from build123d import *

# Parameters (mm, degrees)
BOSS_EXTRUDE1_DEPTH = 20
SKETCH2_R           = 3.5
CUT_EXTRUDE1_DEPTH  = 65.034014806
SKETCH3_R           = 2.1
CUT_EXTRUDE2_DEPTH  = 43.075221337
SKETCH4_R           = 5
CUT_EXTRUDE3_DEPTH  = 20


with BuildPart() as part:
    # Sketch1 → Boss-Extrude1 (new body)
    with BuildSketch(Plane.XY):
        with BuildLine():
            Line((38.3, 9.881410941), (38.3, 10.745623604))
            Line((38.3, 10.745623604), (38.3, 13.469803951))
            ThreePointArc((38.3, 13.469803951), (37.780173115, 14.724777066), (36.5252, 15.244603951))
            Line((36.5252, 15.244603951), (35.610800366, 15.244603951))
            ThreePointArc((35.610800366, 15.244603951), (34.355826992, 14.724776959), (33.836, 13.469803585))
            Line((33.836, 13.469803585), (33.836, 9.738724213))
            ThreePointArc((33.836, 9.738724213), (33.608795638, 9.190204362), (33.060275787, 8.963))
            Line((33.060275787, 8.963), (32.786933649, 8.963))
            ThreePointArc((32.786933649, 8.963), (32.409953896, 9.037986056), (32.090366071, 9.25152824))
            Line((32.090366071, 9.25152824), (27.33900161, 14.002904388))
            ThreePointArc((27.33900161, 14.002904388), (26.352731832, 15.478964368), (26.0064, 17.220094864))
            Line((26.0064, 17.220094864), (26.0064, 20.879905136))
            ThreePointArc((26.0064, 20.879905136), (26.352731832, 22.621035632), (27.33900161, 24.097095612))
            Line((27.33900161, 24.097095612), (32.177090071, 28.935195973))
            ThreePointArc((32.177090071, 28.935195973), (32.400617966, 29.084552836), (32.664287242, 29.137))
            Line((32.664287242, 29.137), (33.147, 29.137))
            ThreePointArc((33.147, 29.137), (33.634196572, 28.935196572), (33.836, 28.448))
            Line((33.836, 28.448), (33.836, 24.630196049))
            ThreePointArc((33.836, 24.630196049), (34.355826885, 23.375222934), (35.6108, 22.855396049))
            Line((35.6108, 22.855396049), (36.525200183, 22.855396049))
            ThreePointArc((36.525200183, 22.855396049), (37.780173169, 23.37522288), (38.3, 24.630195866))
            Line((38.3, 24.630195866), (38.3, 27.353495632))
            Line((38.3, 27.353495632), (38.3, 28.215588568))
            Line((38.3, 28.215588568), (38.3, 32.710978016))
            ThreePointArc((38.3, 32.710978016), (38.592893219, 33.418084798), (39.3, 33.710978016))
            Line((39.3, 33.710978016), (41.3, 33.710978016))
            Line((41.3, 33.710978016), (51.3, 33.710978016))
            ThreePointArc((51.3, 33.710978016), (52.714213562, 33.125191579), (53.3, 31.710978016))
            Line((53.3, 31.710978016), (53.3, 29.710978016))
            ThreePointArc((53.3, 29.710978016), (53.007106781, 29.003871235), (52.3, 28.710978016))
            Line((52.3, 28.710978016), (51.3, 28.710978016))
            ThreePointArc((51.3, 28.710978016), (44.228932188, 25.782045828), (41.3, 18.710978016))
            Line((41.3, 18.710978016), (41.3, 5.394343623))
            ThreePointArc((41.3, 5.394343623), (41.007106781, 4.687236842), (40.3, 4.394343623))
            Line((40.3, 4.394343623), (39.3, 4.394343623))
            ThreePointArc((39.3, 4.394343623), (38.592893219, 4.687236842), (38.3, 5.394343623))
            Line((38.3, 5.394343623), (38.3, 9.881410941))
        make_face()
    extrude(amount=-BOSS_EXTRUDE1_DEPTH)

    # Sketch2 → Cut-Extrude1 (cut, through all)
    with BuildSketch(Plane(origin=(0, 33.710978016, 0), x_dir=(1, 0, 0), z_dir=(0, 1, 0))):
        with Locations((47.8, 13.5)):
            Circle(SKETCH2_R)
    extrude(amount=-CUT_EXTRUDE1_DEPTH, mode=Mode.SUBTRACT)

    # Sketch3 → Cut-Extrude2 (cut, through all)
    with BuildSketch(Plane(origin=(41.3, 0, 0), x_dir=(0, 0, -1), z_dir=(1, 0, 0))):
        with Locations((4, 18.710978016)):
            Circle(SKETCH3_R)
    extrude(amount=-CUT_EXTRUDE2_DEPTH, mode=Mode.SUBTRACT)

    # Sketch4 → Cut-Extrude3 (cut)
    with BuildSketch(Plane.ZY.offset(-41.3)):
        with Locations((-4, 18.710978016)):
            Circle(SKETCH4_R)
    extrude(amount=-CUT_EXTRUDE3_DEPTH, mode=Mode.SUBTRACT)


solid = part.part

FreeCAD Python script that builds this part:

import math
import FreeCAD as App
import Part
import Sketcher

doc = App.newDocument("Part")
body = doc.addObject("PartDesign::Body", "Body")

sketch1 = body.newObject("Sketcher::SketchObject", "Sketch")
sketch1.AttachmentSupport = (doc.getObject("XY_Plane"), [""])
sketch1.MapMode = "FlatFace"
sketch1.addGeometry(Part.ArcOfCircle(Part.Circle(App.Vector(36.53, 13.47, 0), App.Vector(0, 0, 1), 1.77), math.radians(0), math.radians(90)), False)
sketch1.addGeometry(Part.LineSegment(App.Vector(38.3, 13.47, 0), App.Vector(38.3, 5.39, 0)), False)
sketch1.addGeometry(Part.ArcOfCircle(Part.Circle(App.Vector(39.3, 5.39, 0), App.Vector(0, 0, 1), 1), math.radians(-180), math.radians(-90)), False)
sketch1.addGeometry(Part.LineSegment(App.Vector(39.3, 4.39, 0), App.Vector(40.3, 4.39, 0)), False)
sketch1.addGeometry(Part.ArcOfCircle(Part.Circle(App.Vector(40.3, 5.39, 0), App.Vector(0, 0, 1), 1), math.radians(-90), math.radians(0)), False)
sketch1.addGeometry(Part.LineSegment(App.Vector(41.3, 5.39, 0), App.Vector(41.3, 18.71, 0)), False)
sketch1.addGeometry(Part.ArcOfCircle(Part.Circle(App.Vector(51.3, 18.71, 0), App.Vector(0, 0, 1), 10), math.radians(90), math.radians(180)), False)
sketch1.addGeometry(Part.LineSegment(App.Vector(51.3, 28.71, 0), App.Vector(52.3, 28.71, 0)), False)
sketch1.addGeometry(Part.ArcOfCircle(Part.Circle(App.Vector(52.3, 29.71, 0), App.Vector(0, 0, 1), 1), math.radians(-90), math.radians(0)), False)
sketch1.addGeometry(Part.LineSegment(App.Vector(53.3, 29.71, 0), App.Vector(53.3, 31.71, 0)), False)
sketch1.addGeometry(Part.ArcOfCircle(Part.Circle(App.Vector(51.3, 31.71, 0), App.Vector(0, 0, 1), 2), math.radians(0), math.radians(90)), False)
sketch1.addGeometry(Part.LineSegment(App.Vector(51.3, 33.71, 0), App.Vector(39.3, 33.71, 0)), False)
sketch1.addGeometry(Part.ArcOfCircle(Part.Circle(App.Vector(39.3, 32.71, 0), App.Vector(0, 0, 1), 1), math.radians(90), math.radians(180)), False)
sketch1.addGeometry(Part.LineSegment(App.Vector(38.3, 32.71, 0), App.Vector(38.3, 24.63, 0)), False)
sketch1.addGeometry(Part.ArcOfCircle(Part.Circle(App.Vector(36.53, 24.63, 0), App.Vector(0, 0, 1), 1.77), math.radians(-90), math.radians(0)), False)
sketch1.addGeometry(Part.LineSegment(App.Vector(36.53, 22.86, 0), App.Vector(35.61, 22.86, 0)), False)
sketch1.addGeometry(Part.ArcOfCircle(Part.Circle(App.Vector(35.61, 24.63, 0), App.Vector(0, 0, 1), 1.77), math.radians(-180), math.radians(-90)), False)
sketch1.addGeometry(Part.LineSegment(App.Vector(33.84, 24.63, 0), App.Vector(33.84, 28.45, 0)), False)
sketch1.addGeometry(Part.ArcOfCircle(Part.Circle(App.Vector(33.15, 28.45, 0), App.Vector(0, 0, 1), 0.69), math.radians(0), math.radians(90)), False)
sketch1.addGeometry(Part.LineSegment(App.Vector(33.15, 29.14, 0), App.Vector(32.66, 29.14, 0)), False)
sketch1.addGeometry(Part.ArcOfCircle(Part.Circle(App.Vector(32.66, 28.45, 0), App.Vector(0, 0, 1), 0.69), math.radians(90), math.radians(135)), False)
sketch1.addGeometry(Part.LineSegment(App.Vector(32.18, 28.94, 0), App.Vector(27.34, 24.1, 0)), False)
sketch1.addGeometry(Part.ArcOfCircle(Part.Circle(App.Vector(30.56, 20.88, 0), App.Vector(0, 0, 1), 4.55), math.radians(135), math.radians(180)), False)
sketch1.addGeometry(Part.LineSegment(App.Vector(26.01, 20.88, 0), App.Vector(26.01, 17.22, 0)), False)
sketch1.addGeometry(Part.ArcOfCircle(Part.Circle(App.Vector(30.56, 17.22, 0), App.Vector(0, 0, 1), 4.55), math.radians(180), math.radians(225)), False)
sketch1.addGeometry(Part.LineSegment(App.Vector(27.34, 14, 0), App.Vector(32.09, 9.25, 0)), False)
sketch1.addGeometry(Part.ArcOfCircle(Part.Circle(App.Vector(32.79, 9.95, 0), App.Vector(0, 0, 1), 0.99), math.radians(-135), math.radians(-90)), False)
sketch1.addGeometry(Part.LineSegment(App.Vector(32.79, 8.96, 0), App.Vector(33.06, 8.96, 0)), False)
sketch1.addGeometry(Part.ArcOfCircle(Part.Circle(App.Vector(33.06, 9.74, 0), App.Vector(0, 0, 1), 0.78), math.radians(-90), math.radians(0)), False)
sketch1.addGeometry(Part.LineSegment(App.Vector(33.84, 9.74, 0), App.Vector(33.84, 13.47, 0)), False)
sketch1.addGeometry(Part.ArcOfCircle(Part.Circle(App.Vector(35.61, 13.47, 0), App.Vector(0, 0, 1), 1.77), math.radians(90), math.radians(180)), False)
sketch1.addGeometry(Part.LineSegment(App.Vector(35.61, 15.24, 0), App.Vector(36.53, 15.24, 0)), False)
sketch1.addConstraint(Sketcher.Constraint("Tangent", 0, 1, 1, 1))
sketch1.addConstraint(Sketcher.Constraint("Tangent", 1, 2, 2, 1))
sketch1.addConstraint(Sketcher.Constraint("Tangent", 2, 2, 3, 1))
sketch1.addConstraint(Sketcher.Constraint("Tangent", 3, 2, 4, 1))
sketch1.addConstraint(Sketcher.Constraint("Tangent", 4, 2, 5, 1))
sketch1.addConstraint(Sketcher.Constraint("Tangent", 5, 2, 6, 2))
sketch1.addConstraint(Sketcher.Constraint("Tangent", 6, 1, 7, 1))
sketch1.addConstraint(Sketcher.Constraint("Tangent", 7, 2, 8, 1))
sketch1.addConstraint(Sketcher.Constraint("Tangent", 8, 2, 9, 1))
sketch1.addConstraint(Sketcher.Constraint("Tangent", 9, 2, 10, 1))
sketch1.addConstraint(Sketcher.Constraint("Tangent", 10, 2, 11, 1))
sketch1.addConstraint(Sketcher.Constraint("Tangent", 11, 2, 12, 1))
sketch1.addConstraint(Sketcher.Constraint("Tangent", 12, 2, 13, 1))
sketch1.addConstraint(Sketcher.Constraint("Tangent", 13, 2, 14, 2))
sketch1.addConstraint(Sketcher.Constraint("Tangent", 14, 1, 15, 1))
sketch1.addConstraint(Sketcher.Constraint("Tangent", 15, 2, 16, 2))
sketch1.addConstraint(Sketcher.Constraint("Tangent", 16, 1, 17, 1))
sketch1.addConstraint(Sketcher.Constraint("Tangent", 17, 2, 18, 1))
sketch1.addConstraint(Sketcher.Constraint("Tangent", 18, 2, 19, 1))
sketch1.addConstraint(Sketcher.Constraint("Tangent", 19, 2, 20, 1))
sketch1.addConstraint(Sketcher.Constraint("Tangent", 20, 2, 21, 1))
sketch1.addConstraint(Sketcher.Constraint("Tangent", 21, 2, 22, 1))
sketch1.addConstraint(Sketcher.Constraint("Tangent", 22, 2, 23, 1))
sketch1.addConstraint(Sketcher.Constraint("Tangent", 23, 2, 24, 1))
sketch1.addConstraint(Sketcher.Constraint("Tangent", 24, 2, 25, 1))
sketch1.addConstraint(Sketcher.Constraint("Tangent", 25, 2, 26, 1))
sketch1.addConstraint(Sketcher.Constraint("Tangent", 26, 2, 27, 1))
sketch1.addConstraint(Sketcher.Constraint("Tangent", 27, 2, 28, 1))
sketch1.addConstraint(Sketcher.Constraint("Tangent", 28, 2, 29, 1))
sketch1.addConstraint(Sketcher.Constraint("Tangent", 29, 2, 30, 2))
sketch1.addConstraint(Sketcher.Constraint("Tangent", 30, 1, 31, 1))
sketch1.addConstraint(Sketcher.Constraint("Tangent", 31, 2, 0, 2))
sketch1.addConstraint(Sketcher.Constraint("Vertical", 1))
sketch1.addConstraint(Sketcher.Constraint("Horizontal", 3))
sketch1.addConstraint(Sketcher.Constraint("Vertical", 5))
sketch1.addConstraint(Sketcher.Constraint("Horizontal", 7))
sketch1.addConstraint(Sketcher.Constraint("Vertical", 9))
sketch1.addConstraint(Sketcher.Constraint("Horizontal", 11))
sketch1.addConstraint(Sketcher.Constraint("Vertical", 13))
sketch1.addConstraint(Sketcher.Constraint("Horizontal", 15))
sketch1.addConstraint(Sketcher.Constraint("Vertical", 17))
sketch1.addConstraint(Sketcher.Constraint("Horizontal", 19))
sketch1.addConstraint(Sketcher.Constraint("Vertical", 23))
sketch1.addConstraint(Sketcher.Constraint("Horizontal", 27))
sketch1.addConstraint(Sketcher.Constraint("Vertical", 29))
sketch1.addConstraint(Sketcher.Constraint("Horizontal", 31))
sketch1.addConstraint(Sketcher.Constraint("Equal", 2, 4))
sketch1.addConstraint(Sketcher.Constraint("Equal", 4, 8))
sketch1.addConstraint(Sketcher.Constraint("Equal", 8, 12))
sketch1.addConstraint(Sketcher.Constraint("Equal", 0, 14))
sketch1.addConstraint(Sketcher.Constraint("Equal", 14, 16))
sketch1.addConstraint(Sketcher.Constraint("Equal", 18, 20))
sketch1.addConstraint(Sketcher.Constraint("Equal", 22, 24))
sketch1.addConstraint(Sketcher.Constraint("Equal", 16, 30))
sketch1.addConstraint(Sketcher.Constraint("Vertical", 6, 3, 10, 3))
sketch1.addConstraint(Sketcher.Constraint("Vertical", 2, 3, 12, 3))
sketch1.addConstraint(Sketcher.Constraint("Vertical", 16, 3, 30, 3))
sketch1.addConstraint(Sketcher.Constraint("Vertical", 21, 2, 24, 2))
sketch1.addConstraint(Sketcher.Constraint("Equal", 3, 7))
sketch1.addConstraint(Sketcher.Constraint("Radius", 2, 1.0))
sketch1.addConstraint(Sketcher.Constraint("Radius", 6, 10.0))
sketch1.addConstraint(Sketcher.Constraint("Radius", 10, 2.0))
sketch1.addConstraint(Sketcher.Constraint("DistanceY", 9, 1, 9, 2, 2.0))
sketch1.addConstraint(Sketcher.Constraint("Radius", 18, 0.689))
sketch1.addConstraint(Sketcher.Constraint("DistanceX", -1, 1, 2, 3, 39.3))
sketch1.addConstraint(Sketcher.Constraint("Radius", 0, 1.7748))
sketch1.addConstraint(Sketcher.Constraint("Radius", 22, 4.5498))
sketch1.addConstraint(Sketcher.Constraint("DistanceX", 15, 2, 15, 1, 0.9144))
sketch1.addConstraint(Sketcher.Constraint("DistanceY", -1, 1, 18, 3, 28.448))
sketch1.addConstraint(Sketcher.Constraint("DistanceX", -1, 1, 21, 2, 27.339002))
sketch1.addConstraint(Sketcher.Constraint("DistanceY", -1, 1, 26, 2, 8.963))
sketch1.addConstraint(Sketcher.Constraint("Radius", 26, 0.985094))
sketch1.addConstraint(Sketcher.Constraint("Radius", 28, 0.775724))
sketch1.addConstraint(Sketcher.Constraint("DistanceX", 22, 3, 14, 3, 5.969))
sketch1.addConstraint(Sketcher.Constraint("DistanceY", 26, 3, 24, 3, 7.272001))
sketch1.addConstraint(Sketcher.Constraint("DistanceY", 23, 2, 21, 2, 6.877001))
sketch1.addConstraint(Sketcher.Constraint("DistanceY", 1, 2, 1, 1, 8.07546))
sketch1.addConstraint(Sketcher.Constraint("DistanceY", 29, 1, 29, 2, 3.731079))
sketch1.addConstraint(Sketcher.Constraint("DistanceY", 24, 3, 16, 3, 7.410101))
sketch1.addConstraint(Sketcher.Constraint("DistanceY", 5, 1, 5, 2, 13.316634))
pad1 = body.newObject("PartDesign::Pad", "Pad")
pad1.Profile = sketch1
pad1.Length = 20
pad1.Reversed = True

sketch2 = body.newObject("Sketcher::SketchObject", "Sketch001")
sketch2.AttachmentSupport = (doc.getObject("XZ_Plane"), [""])
sketch2.MapMode = "FlatFace"
sketch2.AttachmentOffset = App.Placement(App.Vector(0, 0, -33.710978), App.Rotation())
sketch2.addGeometry(Part.Circle(App.Vector(47.8, -13.5, 0), App.Vector(0, 0, 1), 3.5), False)
sketch2.addConstraint(Sketcher.Constraint("Diameter", 0, 7.0))
sketch2.addConstraint(Sketcher.Constraint("DistanceX", -1, 1, 0, 3, 47.8))
sketch2.addConstraint(Sketcher.Constraint("DistanceY", 0, 3, -1, 1, 13.5))
pocket1 = body.newObject("PartDesign::Pocket", "Pocket")
pocket1.Profile = sketch2
pocket1.Type = "ThroughAll"
pocket1.Reversed = True

sketch3 = body.newObject("Sketcher::SketchObject", "Sketch002")
sketch3.AttachmentSupport = (doc.getObject("YZ_Plane"), [""])
sketch3.MapMode = "FlatFace"
sketch3.AttachmentOffset = App.Placement(App.Vector(0, 0, 41.3), App.Rotation())
sketch3.addGeometry(Part.Circle(App.Vector(18.7, -4, 0), App.Vector(0, 0, 1), 2.1), False)
sketch3.addConstraint(Sketcher.Constraint("Diameter", 0, 4.2))
sketch3.addConstraint(Sketcher.Constraint("DistanceY", 0, 3, -1, 1, 4.0))
sketch3.addConstraint(Sketcher.Constraint("DistanceX", -1, 1, 0, 3, 18.710978))
pocket2 = body.newObject("PartDesign::Pocket", "Pocket001")
pocket2.Profile = sketch3
pocket2.Type = "ThroughAll"

sketch4 = body.newObject("Sketcher::SketchObject", "Sketch003")
sketch4.AttachmentSupport = (doc.getObject("YZ_Plane"), [""])
sketch4.MapMode = "FlatFace"
sketch4.AttachmentOffset = App.Placement(App.Vector(0, 0, 41.3), App.Rotation())
sketch4.addGeometry(Part.Circle(App.Vector(19, -4, 0), App.Vector(0, 0, 1), 5), False)
sketch4.addConstraint(Sketcher.Constraint("Diameter", 0, 10.0))
sketch4.addConstraint(Sketcher.Constraint("DistanceY", 0, 3, -1, 1, 4.0))
sketch4.addConstraint(Sketcher.Constraint("DistanceX", -1, 1, 0, 3, 18.710978))
pocket3 = body.newObject("PartDesign::Pocket", "Pocket002")
pocket3.Profile = sketch4
pocket3.Length = 20
pocket3.Reversed = True

doc.recompute()
